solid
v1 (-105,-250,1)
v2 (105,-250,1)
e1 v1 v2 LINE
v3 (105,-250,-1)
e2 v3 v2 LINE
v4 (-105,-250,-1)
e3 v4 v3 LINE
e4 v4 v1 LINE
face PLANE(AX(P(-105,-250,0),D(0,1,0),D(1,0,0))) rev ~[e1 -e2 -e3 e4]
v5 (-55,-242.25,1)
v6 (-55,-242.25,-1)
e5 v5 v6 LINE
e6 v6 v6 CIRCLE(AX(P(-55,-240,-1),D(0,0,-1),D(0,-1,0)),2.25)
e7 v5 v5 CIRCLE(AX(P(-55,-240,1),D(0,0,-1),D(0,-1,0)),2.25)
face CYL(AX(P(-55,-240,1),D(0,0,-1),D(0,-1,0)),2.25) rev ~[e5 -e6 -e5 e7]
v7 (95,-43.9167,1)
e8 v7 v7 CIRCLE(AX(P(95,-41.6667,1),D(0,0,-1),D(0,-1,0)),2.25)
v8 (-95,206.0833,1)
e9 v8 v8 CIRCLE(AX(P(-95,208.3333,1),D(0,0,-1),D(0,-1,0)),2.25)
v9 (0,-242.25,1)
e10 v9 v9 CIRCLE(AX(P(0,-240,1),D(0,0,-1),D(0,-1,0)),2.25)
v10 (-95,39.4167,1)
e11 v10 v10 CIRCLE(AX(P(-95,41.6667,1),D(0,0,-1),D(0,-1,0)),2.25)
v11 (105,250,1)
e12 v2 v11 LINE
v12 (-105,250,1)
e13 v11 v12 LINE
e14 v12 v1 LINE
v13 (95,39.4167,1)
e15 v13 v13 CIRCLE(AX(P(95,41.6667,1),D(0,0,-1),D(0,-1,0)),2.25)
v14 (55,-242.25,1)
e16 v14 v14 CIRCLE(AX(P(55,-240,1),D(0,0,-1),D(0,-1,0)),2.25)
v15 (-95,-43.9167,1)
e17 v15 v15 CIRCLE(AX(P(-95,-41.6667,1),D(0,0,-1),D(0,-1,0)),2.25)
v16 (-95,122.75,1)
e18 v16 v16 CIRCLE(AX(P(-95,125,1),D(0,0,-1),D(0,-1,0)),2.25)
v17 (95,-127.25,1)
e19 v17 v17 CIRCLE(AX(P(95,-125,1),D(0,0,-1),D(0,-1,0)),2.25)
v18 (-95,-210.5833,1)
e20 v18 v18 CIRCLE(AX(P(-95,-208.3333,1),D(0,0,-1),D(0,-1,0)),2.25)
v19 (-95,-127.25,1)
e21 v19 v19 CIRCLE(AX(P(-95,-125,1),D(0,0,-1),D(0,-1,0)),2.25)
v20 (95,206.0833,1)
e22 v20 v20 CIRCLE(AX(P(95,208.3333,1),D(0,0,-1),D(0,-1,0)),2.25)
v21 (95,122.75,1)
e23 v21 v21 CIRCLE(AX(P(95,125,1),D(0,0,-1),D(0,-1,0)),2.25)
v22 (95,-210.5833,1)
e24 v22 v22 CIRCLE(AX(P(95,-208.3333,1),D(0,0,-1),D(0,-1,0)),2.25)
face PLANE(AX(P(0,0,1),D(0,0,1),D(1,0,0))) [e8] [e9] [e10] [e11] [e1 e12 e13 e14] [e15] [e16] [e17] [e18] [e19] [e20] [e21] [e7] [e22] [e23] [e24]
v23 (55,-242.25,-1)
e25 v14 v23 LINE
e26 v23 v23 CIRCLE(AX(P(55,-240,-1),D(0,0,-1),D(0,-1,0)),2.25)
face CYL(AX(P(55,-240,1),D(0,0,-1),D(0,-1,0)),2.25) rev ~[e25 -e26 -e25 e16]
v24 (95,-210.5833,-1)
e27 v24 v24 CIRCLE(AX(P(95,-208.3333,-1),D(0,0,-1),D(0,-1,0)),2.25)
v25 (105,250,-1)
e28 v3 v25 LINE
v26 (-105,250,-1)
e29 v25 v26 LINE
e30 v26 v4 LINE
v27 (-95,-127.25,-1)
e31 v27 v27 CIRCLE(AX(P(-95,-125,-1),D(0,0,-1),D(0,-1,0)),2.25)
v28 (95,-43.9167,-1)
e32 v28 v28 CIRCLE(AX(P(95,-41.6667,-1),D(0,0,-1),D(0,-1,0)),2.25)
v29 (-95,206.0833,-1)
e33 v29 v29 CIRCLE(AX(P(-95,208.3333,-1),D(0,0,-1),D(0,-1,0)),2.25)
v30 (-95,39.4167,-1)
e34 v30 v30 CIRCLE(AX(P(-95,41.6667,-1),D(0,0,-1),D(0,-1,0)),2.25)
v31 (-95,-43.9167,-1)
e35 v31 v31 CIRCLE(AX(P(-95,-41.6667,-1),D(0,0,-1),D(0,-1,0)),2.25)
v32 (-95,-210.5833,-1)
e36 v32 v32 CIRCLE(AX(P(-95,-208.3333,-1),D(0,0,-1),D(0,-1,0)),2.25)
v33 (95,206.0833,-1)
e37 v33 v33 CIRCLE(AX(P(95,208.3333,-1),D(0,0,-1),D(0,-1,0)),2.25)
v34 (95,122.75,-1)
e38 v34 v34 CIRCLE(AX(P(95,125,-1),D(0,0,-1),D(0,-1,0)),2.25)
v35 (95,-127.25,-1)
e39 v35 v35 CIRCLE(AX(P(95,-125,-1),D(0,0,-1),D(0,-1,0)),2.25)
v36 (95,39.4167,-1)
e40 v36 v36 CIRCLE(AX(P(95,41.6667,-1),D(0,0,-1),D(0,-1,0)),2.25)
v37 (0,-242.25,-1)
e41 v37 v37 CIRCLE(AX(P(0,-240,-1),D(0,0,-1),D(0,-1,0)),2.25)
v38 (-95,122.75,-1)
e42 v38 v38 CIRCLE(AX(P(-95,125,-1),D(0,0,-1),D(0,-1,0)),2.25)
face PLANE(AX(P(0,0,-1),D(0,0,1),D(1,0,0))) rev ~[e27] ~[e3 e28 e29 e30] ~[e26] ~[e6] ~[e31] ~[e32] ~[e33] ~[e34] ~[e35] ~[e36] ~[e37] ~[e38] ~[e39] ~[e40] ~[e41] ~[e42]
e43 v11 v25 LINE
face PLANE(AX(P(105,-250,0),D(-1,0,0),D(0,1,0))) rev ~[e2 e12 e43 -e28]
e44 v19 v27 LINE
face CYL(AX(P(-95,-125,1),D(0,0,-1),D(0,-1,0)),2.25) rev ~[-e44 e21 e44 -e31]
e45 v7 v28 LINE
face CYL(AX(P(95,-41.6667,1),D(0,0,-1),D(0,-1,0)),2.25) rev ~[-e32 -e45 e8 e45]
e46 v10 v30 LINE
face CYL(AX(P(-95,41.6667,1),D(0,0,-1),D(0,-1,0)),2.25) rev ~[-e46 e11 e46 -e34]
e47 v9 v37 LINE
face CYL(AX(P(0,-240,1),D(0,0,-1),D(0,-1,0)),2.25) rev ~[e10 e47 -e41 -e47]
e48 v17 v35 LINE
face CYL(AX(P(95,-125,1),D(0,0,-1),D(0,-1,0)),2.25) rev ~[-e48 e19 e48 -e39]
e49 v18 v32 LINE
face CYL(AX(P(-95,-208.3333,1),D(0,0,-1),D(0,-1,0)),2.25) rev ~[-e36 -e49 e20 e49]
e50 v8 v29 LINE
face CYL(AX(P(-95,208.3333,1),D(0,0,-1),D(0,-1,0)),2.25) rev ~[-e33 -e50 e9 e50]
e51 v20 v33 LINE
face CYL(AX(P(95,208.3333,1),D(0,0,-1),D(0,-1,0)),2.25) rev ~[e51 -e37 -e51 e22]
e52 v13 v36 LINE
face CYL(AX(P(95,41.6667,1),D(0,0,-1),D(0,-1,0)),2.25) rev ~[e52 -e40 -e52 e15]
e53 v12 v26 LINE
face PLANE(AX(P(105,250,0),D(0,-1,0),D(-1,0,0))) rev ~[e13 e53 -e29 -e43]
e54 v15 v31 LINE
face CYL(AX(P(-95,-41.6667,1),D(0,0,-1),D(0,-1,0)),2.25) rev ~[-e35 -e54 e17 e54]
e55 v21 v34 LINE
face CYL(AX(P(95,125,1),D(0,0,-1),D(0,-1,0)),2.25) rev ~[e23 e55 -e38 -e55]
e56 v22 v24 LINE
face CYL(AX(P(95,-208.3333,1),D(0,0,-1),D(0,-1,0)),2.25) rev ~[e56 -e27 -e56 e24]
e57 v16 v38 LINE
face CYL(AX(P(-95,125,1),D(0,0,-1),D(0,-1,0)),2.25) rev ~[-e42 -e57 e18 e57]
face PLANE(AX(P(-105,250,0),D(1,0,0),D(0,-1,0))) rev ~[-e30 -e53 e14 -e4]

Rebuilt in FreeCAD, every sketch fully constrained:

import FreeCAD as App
import Part
import Sketcher
Q = App.Units.Quantity


def add_polygon(sketch, points):
    """Adds a closed chain of lines whose ends are joined by coincident constraints."""
    first, n = sketch.GeometryCount, len(points)
    for a, b in zip(points, points[1:] + points[:1]):
        sketch.addGeometry(Part.LineSegment(App.Vector(*a, 0), App.Vector(*b, 0)), False)
    for i in range(n):
        sketch.addConstraint(Sketcher.Constraint("Coincident", first + i, 2, first + (i + 1) % n, 1))

doc = App.newDocument("Part")
params = doc.addObject("Spreadsheet::Sheet", "Params")
for row, (alias, value) in enumerate([
    ("sketch1_width", "210 mm"),
    ("sketch1_height", "500 mm"),
    ("pad1_length", "2 mm"),
    ("sketch2_diameter", "4.5 mm"),
    ("hole_diameter", "4.5 mm"),
], start=1):
    params.set(f"A{row}", alias)
    params.set(f"B{row}", "=" + value)
    params.setAlias(f"B{row}", alias)

body = doc.addObject("PartDesign::Body", "Body")

sketch1 = doc.addObject("Sketcher::SketchObject", "Sketch")
body.addObject(sketch1)
sketch1.AttachmentSupport = (doc.XY_Plane, [""])
sketch1.MapMode = "FlatFace"
add_polygon(sketch1, [(-105, 250), (-105, -250), (105, -250), (105, 250)])
sketch1.addConstraint(Sketcher.Constraint("Vertical", 0))
sketch1.addConstraint(Sketcher.Constraint("Horizontal", 1))
sketch1.addConstraint(Sketcher.Constraint("Vertical", 2))
sketch1.addConstraint(Sketcher.Constraint("Horizontal", 3))
sketch1.addConstraint(Sketcher.Constraint("Symmetric", 0, 2, 2, 2, -1, 1))
sketch1.addConstraint(Sketcher.Constraint("DistanceX", 1, 1, 1, 2, Q("210 mm")))
sketch1.addConstraint(Sketcher.Constraint("DistanceY", 0, 2, 0, 1, Q("500 mm")))
sketch1.setExpression("Constraints[9]", "Params.sketch1_width")
sketch1.setExpression("Constraints[10]", "Params.sketch1_height")
pad1 = doc.addObject("PartDesign::Pad", "Pad")
body.addObject(pad1)
pad1.Profile = sketch1
pad1.setExpression("Length", "Params.pad1_length")
pad1.Midplane = True

sketch2 = doc.addObject("Sketcher::SketchObject", "Sketch001")
body.addObject(sketch2)
sketch2.AttachmentSupport = (doc.XY_Plane, [""])
sketch2.MapMode = "FlatFace"
sketch2.AttachmentOffset = App.Placement(App.Vector(0, 0, 1), App.Rotation())
sketch2.addGeometry(Part.Circle(App.Vector(-95, -208.3, 0), App.Vector(0, 0, 1), 2.2), False)
sketch2.addGeometry(Part.Circle(App.Vector(-95, -125, 0), App.Vector(0, 0, 1), 2.2), False)
sketch2.addGeometry(Part.Circle(App.Vector(-95, -41.7, 0), App.Vector(0, 0, 1), 2.2), False)
sketch2.addGeometry(Part.Circle(App.Vector(-95, 41.7, 0), App.Vector(0, 0, 1), 2.2), False)
sketch2.addGeometry(Part.Circle(App.Vector(-95, 125, 0), App.Vector(0, 0, 1), 2.2), False)
sketch2.addGeometry(Part.Circle(App.Vector(-95, 208.3, 0), App.Vector(0, 0, 1), 2.2), False)
sketch2.addGeometry(Part.Circle(App.Vector(95, 208.3, 0), App.Vector(0, 0, 1), 2.2), False)
sketch2.addGeometry(Part.Circle(App.Vector(95, 125, 0), App.Vector(0, 0, 1), 2.2), False)
sketch2.addGeometry(Part.Circle(App.Vector(95, 41.7, 0), App.Vector(0, 0, 1), 2.2), False)
sketch2.addGeometry(Part.Circle(App.Vector(95, -41.7, 0), App.Vector(0, 0, 1), 2.2), False)
sketch2.addGeometry(Part.Circle(App.Vector(95, -125, 0), App.Vector(0, 0, 1), 2.2), False)
sketch2.addGeometry(Part.Circle(App.Vector(95, -208.3, 0), App.Vector(0, 0, 1), 2.2), False)
sketch2.addGeometry(Part.Circle(App.Vector(-55, -240, 0), App.Vector(0, 0, 1), 2.2), False)
sketch2.addGeometry(Part.Circle(App.Vector(0, -240, 0), App.Vector(0, 0, 1), 2.2), False)
sketch2.addGeometry(Part.Circle(App.Vector(55, -240, 0), App.Vector(0, 0, 1), 2.2), False)
sketch2.addConstraint(Sketcher.Constraint("Equal", 0, 1))
sketch2.addConstraint(Sketcher.Constraint("Equal", 1, 2))
sketch2.addConstraint(Sketcher.Constraint("Equal", 2, 3))
sketch2.addConstraint(Sketcher.Constraint("Equal", 3, 4))
sketch2.addConstraint(Sketcher.Constraint("Equal", 4, 5))
sketch2.addConstraint(Sketcher.Constraint("Equal", 5, 6))
sketch2.addConstraint(Sketcher.Constraint("Equal", 6, 7))
sketch2.addConstraint(Sketcher.Constraint("Equal", 7, 8))
sketch2.addConstraint(Sketcher.Constraint("Equal", 8, 9))
sketch2.addConstraint(Sketcher.Constraint("Equal", 9, 10))
sketch2.addConstraint(Sketcher.Constraint("Equal", 10, 11))
sketch2.addConstraint(Sketcher.Constraint("Equal", 11, 12))
sketch2.addConstraint(Sketcher.Constraint("Equal", 12, 13))
sketch2.addConstraint(Sketcher.Constraint("Equal", 13, 14))
sketch2.addConstraint(Sketcher.Constraint("Symmetric", 0, 3, 6, 3, -1, 1))
sketch2.addConstraint(Sketcher.Constraint("Symmetric", 1, 3, 7, 3, -1, 1))
sketch2.addConstraint(Sketcher.Constraint("Symmetric", 2, 3, 8, 3, -1, 1))
sketch2.addConstraint(Sketcher.Constraint("Symmetric", 3, 3, 9, 3, -1, 1))
sketch2.addConstraint(Sketcher.Constraint("Symmetric", 4, 3, 10, 3, -1, 1))
sketch2.addConstraint(Sketcher.Constraint("Symmetric", 5, 3, 11, 3, -1, 1))
sketch2.addConstraint(Sketcher.Constraint("Symmetric", 5, 3, 6, 3, -2))
sketch2.addConstraint(Sketcher.Constraint("Symmetric", 4, 3, 7, 3, -2))
sketch2.addConstraint(Sketcher.Constraint("Symmetric", 3, 3, 8, 3, -2))
sketch2.addConstraint(Sketcher.Constraint("Symmetric", 12, 3, 14, 3, -2))
sketch2.addConstraint(Sketcher.Constraint("PointOnObject", 13, 3, -2))
sketch2.addConstraint(Sketcher.Constraint("Horizontal", 12, 3, 13, 3))
sketch2.addConstraint(Sketcher.Constraint("Vertical", 0, 3, 1, 3))
sketch2.addConstraint(Sketcher.Constraint("Vertical", 1, 3, 2, 3))
sketch2.addConstraint(Sketcher.Constraint("Diameter", 0, Q("4.5 mm")))
sketch2.addConstraint(Sketcher.Constraint("DistanceX", 0, 3, -1, 1, Q("95 mm")))
sketch2.addConstraint(Sketcher.Constraint("DistanceY", 1, 3, -1, 1, Q("125 mm")))
sketch2.addConstraint(Sketcher.Constraint("DistanceX", 12, 3, -1, 1, Q("55 mm")))
sketch2.addConstraint(Sketcher.Constraint("DistanceY", 12, 3, -1, 1, Q("240 mm")))
sketch2.addConstraint(Sketcher.Constraint("DistanceY", 0, 3, 3, 3, Q("250 mm")))
sketch2.addConstraint(Sketcher.Constraint("DistanceY", 0, 3, -1, 1, Q("208.3333 mm")))
sketch2.setExpression("Constraints[28]", "Params.sketch2_diameter")
doc.recompute()
hole = doc.addObject("PartDesign::Hole", "Hole")
body.addObject(hole)
hole.Profile = sketch2
hole.ThreadType = "None"
hole.setExpression("Diameter", "Params.hole_diameter")
hole.DepthType = "ThroughAll"

doc.recompute()
